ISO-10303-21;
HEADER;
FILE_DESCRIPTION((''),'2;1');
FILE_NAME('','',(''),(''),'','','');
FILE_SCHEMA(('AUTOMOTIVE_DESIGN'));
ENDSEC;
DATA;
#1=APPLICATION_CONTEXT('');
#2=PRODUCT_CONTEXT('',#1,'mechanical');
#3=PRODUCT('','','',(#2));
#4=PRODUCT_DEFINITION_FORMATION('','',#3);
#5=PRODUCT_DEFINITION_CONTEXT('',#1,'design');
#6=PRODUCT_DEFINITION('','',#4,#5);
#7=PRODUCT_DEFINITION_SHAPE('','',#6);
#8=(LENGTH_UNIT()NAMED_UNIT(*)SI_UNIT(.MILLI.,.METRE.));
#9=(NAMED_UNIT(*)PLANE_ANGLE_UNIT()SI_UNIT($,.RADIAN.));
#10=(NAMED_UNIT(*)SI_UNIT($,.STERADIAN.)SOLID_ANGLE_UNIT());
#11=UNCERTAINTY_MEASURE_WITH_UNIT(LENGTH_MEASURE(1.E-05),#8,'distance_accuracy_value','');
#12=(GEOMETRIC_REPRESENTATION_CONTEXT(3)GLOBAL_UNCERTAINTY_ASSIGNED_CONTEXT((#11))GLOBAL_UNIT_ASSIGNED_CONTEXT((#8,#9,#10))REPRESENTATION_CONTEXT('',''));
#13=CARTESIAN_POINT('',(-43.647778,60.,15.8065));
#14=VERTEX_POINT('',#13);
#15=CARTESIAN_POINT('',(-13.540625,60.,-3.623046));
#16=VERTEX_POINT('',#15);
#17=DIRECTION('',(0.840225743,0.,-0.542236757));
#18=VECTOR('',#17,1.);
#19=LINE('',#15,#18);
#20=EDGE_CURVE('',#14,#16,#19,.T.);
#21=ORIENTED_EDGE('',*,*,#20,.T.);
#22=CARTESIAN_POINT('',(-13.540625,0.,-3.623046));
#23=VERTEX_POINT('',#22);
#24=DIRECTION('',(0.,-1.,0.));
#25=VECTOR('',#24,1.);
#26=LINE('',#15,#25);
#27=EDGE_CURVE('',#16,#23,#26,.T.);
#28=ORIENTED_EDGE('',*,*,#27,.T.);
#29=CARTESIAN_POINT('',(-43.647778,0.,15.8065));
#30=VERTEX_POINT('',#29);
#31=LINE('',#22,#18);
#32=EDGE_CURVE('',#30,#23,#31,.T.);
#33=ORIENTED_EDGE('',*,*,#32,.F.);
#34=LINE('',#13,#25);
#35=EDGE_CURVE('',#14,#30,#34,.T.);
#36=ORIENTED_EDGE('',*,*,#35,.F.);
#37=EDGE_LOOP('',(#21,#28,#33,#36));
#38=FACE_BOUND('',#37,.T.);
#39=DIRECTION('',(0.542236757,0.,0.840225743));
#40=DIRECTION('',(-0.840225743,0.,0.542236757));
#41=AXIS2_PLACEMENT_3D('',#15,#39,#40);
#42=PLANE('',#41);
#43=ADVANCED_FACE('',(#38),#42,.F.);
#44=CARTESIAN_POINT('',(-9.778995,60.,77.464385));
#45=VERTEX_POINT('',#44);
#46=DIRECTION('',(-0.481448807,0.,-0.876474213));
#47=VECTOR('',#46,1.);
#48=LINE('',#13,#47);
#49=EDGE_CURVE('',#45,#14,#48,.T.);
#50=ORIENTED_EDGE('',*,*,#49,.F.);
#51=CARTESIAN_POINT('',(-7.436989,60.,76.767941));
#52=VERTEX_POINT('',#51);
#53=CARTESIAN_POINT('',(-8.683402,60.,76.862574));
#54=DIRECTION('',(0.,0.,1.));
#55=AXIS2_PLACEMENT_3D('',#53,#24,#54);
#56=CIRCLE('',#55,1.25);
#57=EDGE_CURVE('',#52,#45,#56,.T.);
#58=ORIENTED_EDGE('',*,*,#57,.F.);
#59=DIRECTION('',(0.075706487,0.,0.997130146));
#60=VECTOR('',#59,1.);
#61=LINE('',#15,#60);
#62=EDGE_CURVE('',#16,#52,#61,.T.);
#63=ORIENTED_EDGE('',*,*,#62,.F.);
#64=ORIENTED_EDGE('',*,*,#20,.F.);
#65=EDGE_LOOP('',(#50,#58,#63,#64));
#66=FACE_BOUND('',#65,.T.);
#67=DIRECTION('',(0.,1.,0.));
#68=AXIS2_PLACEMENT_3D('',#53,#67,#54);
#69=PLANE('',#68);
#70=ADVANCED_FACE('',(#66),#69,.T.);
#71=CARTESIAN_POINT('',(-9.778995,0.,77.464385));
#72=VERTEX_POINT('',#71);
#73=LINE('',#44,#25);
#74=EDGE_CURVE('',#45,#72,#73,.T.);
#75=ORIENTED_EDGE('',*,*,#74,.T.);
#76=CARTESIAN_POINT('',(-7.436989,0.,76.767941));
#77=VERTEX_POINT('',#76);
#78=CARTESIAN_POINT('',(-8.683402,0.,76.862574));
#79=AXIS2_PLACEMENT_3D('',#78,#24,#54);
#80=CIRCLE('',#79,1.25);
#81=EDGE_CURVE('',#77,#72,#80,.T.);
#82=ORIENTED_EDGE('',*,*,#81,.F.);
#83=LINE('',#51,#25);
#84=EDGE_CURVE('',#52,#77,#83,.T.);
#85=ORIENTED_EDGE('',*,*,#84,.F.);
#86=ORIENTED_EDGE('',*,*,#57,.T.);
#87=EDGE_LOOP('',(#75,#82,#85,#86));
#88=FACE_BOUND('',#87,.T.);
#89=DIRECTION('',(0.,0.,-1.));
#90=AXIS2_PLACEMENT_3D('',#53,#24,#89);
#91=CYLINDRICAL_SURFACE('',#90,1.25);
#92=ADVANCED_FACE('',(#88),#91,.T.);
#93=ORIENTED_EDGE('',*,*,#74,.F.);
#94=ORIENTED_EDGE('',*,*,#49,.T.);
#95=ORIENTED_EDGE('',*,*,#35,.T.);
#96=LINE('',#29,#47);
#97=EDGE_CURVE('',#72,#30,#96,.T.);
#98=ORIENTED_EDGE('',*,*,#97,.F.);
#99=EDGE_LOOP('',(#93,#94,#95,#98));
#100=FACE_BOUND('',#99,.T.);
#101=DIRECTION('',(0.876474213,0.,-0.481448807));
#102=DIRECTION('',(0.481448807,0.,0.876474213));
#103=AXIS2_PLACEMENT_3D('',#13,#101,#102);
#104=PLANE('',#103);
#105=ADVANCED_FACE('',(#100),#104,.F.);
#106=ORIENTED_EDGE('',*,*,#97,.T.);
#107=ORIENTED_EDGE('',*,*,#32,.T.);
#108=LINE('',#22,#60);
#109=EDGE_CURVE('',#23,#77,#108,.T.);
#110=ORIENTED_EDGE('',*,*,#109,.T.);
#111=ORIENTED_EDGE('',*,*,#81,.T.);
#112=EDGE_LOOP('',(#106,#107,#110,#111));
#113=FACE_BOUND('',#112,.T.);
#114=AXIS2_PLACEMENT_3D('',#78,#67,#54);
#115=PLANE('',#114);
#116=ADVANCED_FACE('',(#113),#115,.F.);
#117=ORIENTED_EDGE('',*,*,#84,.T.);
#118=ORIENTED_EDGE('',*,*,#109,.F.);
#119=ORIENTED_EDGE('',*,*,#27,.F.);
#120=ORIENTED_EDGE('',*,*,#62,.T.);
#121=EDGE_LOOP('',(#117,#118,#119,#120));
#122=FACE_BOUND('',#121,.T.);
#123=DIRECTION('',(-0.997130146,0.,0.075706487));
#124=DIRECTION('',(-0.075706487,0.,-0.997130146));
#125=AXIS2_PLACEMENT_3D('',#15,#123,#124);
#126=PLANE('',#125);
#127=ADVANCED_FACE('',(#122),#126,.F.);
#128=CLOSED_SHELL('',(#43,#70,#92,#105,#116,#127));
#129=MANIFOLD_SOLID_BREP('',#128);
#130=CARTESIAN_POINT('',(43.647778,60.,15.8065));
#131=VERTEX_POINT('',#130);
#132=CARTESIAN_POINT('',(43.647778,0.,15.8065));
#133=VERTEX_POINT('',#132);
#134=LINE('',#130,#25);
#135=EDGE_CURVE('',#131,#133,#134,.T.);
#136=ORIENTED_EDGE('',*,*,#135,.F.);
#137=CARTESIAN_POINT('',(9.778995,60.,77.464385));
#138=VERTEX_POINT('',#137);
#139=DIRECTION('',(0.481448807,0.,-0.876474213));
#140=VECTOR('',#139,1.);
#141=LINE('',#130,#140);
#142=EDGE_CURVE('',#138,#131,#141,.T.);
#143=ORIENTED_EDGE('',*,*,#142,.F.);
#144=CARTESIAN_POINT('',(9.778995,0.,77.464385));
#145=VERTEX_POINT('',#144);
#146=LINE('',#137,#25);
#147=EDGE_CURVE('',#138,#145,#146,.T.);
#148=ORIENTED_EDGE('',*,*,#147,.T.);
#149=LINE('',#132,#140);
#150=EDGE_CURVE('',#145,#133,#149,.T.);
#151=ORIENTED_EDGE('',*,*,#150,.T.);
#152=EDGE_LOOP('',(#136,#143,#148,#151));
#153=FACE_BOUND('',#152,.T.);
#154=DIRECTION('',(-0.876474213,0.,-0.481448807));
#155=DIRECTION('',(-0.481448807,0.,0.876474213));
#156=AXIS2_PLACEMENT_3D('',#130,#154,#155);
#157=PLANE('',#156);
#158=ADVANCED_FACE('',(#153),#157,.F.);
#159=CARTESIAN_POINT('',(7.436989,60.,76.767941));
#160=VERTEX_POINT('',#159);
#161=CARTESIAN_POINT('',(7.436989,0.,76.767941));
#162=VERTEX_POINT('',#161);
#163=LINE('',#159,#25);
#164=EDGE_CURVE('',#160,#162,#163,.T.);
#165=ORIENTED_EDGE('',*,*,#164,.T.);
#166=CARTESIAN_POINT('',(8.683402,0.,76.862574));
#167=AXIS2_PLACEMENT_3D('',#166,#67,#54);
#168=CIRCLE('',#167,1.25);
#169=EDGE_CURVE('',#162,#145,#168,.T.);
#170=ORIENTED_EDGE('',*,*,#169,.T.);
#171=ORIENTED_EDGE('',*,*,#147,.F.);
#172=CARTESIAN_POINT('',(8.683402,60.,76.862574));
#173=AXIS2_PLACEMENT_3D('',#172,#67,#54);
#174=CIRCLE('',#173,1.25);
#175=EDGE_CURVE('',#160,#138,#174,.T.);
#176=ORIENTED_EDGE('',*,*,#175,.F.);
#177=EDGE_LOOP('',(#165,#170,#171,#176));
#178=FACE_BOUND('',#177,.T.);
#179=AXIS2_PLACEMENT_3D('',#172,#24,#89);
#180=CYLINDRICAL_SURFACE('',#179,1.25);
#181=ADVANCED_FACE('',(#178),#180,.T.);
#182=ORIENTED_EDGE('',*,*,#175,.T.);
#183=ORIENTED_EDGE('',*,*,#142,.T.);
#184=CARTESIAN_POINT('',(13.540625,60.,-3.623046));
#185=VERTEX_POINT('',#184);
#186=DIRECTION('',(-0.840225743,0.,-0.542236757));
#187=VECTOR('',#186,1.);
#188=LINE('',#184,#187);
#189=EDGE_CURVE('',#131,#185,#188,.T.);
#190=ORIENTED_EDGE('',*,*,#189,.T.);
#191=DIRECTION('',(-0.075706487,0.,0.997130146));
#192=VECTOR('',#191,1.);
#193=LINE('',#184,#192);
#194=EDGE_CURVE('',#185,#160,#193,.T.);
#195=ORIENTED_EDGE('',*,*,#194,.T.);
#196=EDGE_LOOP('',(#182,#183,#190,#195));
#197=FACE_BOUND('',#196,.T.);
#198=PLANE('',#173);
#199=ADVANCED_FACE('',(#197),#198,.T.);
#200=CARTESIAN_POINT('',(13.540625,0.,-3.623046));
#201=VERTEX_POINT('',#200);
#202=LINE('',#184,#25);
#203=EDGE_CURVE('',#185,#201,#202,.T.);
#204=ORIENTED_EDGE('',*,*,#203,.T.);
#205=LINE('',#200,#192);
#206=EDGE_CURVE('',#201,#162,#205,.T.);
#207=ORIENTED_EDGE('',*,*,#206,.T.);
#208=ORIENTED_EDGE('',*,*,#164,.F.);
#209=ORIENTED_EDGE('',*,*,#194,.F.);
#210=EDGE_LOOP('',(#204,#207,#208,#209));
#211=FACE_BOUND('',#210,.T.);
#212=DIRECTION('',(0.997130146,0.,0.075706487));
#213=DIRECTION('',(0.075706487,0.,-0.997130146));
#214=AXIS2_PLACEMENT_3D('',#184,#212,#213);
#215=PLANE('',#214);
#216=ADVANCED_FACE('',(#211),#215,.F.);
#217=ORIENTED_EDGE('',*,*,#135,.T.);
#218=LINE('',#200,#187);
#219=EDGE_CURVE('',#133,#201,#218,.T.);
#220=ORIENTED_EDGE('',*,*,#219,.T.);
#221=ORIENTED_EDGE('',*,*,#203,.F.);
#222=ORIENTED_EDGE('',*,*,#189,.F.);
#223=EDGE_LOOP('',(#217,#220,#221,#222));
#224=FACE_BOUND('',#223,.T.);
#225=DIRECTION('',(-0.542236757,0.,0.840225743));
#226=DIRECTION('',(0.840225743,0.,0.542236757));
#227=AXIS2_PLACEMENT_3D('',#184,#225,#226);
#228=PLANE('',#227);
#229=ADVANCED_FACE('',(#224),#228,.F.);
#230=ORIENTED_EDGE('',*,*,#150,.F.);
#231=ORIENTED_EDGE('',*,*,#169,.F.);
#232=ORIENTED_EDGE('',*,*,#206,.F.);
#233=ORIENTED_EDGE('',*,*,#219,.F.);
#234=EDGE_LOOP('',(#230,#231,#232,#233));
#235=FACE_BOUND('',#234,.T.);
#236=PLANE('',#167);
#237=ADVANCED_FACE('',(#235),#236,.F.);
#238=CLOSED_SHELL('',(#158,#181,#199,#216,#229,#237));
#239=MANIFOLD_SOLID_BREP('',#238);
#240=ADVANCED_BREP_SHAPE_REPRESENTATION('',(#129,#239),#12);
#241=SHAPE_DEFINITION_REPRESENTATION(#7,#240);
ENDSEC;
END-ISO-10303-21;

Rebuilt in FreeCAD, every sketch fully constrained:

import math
import FreeCAD as App
import Part
import Sketcher
from FreeCAD import Vector
Q = App.Units.Quantity

doc = App.newDocument("Part")
body = doc.addObject("PartDesign::Body", "Body")

# Sketch on XZ plane
sketch1 = doc.addObject("Sketcher::SketchObject", "Sketch")
body.addObject(sketch1)
sketch1.AttachmentSupport = (doc.XZ_Plane, [""])
sketch1.MapMode = "FlatFace"
sketch1.addGeometry([
    Part.LineSegment(Vector(13.5, -3.6, 0), Vector(7.4, 76.8, 0)),
    Part.ArcOfCircle(Part.Circle(Vector(8.7, 76.9, 0), Vector(0, 0, 1), 1.2), math.radians(29), math.radians(184)),
    Part.LineSegment(Vector(9.8, 77.5, 0), Vector(43.6, 15.8, 0)),
    Part.LineSegment(Vector(43.6, 15.8, 0), Vector(13.5, -3.6, 0)),
], False)
sketch1.addConstraint([
    Sketcher.Constraint("Tangent", 0, 2, 1, 2),
    Sketcher.Constraint("Tangent", 1, 1, 2, 1),
    Sketcher.Constraint("Coincident", 2, 2, 3, 1),
    Sketcher.Constraint("Coincident", 3, 2, 0, 1),
    Sketcher.Constraint("Radius", 1, Q("1.25 mm")),
    Sketcher.Constraint("DistanceX", -1, 1, 1, 3, Q("8.683402 mm")),
    Sketcher.Constraint("DistanceY", -1, 1, 2, 2, Q("15.8065 mm")),
    Sketcher.Constraint("Distance", 0, Q("80.622362 mm")),
    Sketcher.Constraint("Distance", 2, Q("70.347631 mm")),
    Sketcher.Constraint("Distance", 3, Q("35.832219 mm")),
    Sketcher.Constraint("DistanceY", -1, 1, 0, 2, Q("76.767941 mm")),
])
pad1 = doc.addObject("PartDesign::Pad", "Pad")
body.addObject(pad1)
pad1.Profile = sketch1
pad1.Length = 60
pad1.Reversed = True
body2 = doc.addObject("PartDesign::Body", "Body001")
doc.recompute()

mirroring = doc.addObject("Part::Mirroring", "Mirroring")
mirroring.Source = body
mirroring.Base = Vector(0, 0, 0)
mirroring.Normal = Vector(1, 0, 0)
body2.BaseFeature = mirroring
doc.recompute()
mirroring.Visibility = False

doc.recompute()
